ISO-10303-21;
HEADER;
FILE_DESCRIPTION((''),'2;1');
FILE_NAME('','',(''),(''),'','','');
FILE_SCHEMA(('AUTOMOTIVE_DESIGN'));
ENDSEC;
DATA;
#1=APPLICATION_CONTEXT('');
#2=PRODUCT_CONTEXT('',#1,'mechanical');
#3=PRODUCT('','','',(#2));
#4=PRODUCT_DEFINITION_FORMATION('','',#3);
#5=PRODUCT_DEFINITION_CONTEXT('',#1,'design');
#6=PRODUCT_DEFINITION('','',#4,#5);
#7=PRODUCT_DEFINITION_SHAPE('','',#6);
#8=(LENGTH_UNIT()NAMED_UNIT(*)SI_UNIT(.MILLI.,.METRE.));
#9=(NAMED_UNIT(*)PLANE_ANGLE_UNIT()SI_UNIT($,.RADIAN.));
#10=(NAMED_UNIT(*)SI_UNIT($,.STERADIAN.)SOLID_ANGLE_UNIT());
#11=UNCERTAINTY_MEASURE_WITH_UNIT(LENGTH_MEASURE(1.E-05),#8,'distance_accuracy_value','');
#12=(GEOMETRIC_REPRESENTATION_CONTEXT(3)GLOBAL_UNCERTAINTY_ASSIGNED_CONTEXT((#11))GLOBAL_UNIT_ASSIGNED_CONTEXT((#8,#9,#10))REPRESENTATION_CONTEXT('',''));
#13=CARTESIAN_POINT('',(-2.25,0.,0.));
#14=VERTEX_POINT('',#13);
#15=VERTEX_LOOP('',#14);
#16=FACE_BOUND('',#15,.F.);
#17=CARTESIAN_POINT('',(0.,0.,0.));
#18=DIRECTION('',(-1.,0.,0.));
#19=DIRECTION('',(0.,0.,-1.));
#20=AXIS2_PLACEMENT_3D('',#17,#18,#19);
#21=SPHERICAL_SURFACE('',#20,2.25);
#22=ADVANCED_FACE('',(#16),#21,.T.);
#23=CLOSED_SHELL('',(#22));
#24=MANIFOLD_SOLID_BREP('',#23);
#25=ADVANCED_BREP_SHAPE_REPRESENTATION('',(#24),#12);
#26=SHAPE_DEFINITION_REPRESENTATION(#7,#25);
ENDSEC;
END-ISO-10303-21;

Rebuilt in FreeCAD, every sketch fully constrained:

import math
import FreeCAD as App
import Part
import Sketcher

V = App.Vector
Q = App.Units.Quantity

doc = App.newDocument("Part")
body = doc.addObject("PartDesign::Body", "Body")

sketch1 = body.newObject("Sketcher::SketchObject", "Sketch")
sketch1.AttachmentSupport = (doc.getObject("XZ_Plane"), [""])
sketch1.MapMode = "FlatFace"
sketch1.addGeometry([
    Part.ArcOfCircle(Part.Circle(V(0, 0, 0), V(0, 0, 1), 2.2), math.radians(180), math.radians(360)),
    Part.LineSegment(V(-2.2, 0, 0), V(2.2, 0, 0)),
], False)
sketch1.addConstraint([
    Sketcher.Constraint("Coincident", 0, 1, 1, 1),
    Sketcher.Constraint("Coincident", 1, 2, 0, 2),
    Sketcher.Constraint("Horizontal", 1),
    Sketcher.Constraint("Coincident", 0, 3, -1, 1),
    Sketcher.Constraint("PointOnObject", 0, 1, -1),
    Sketcher.Constraint("Radius", 0, Q("2.25 mm")),
])
revolution = body.newObject("PartDesign::Revolution", "Revolution")
revolution.Profile = sketch1
revolution.ReferenceAxis = (sketch1, ["H_Axis"])
revolution.Angle = 360

doc.recompute()
